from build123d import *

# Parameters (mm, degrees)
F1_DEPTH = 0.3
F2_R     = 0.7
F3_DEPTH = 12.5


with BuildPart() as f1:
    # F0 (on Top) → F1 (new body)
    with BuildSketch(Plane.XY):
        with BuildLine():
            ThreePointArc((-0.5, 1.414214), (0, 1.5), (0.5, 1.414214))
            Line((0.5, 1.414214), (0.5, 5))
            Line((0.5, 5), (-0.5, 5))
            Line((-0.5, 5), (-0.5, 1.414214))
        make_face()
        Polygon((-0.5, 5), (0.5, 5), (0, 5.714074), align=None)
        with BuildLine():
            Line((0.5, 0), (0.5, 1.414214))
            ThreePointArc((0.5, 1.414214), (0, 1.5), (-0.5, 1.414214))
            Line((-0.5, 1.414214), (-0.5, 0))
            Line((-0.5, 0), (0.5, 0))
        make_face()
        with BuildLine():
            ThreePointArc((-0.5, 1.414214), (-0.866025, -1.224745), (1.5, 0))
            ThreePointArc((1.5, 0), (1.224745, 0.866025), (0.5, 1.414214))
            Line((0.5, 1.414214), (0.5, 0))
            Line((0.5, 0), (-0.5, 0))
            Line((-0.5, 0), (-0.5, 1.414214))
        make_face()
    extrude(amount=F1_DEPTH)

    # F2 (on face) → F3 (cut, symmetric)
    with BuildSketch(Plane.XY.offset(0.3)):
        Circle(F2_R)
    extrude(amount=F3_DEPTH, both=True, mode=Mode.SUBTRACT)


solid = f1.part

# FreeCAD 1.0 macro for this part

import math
import FreeCAD as App
import Part
import Sketcher

V = App.Vector
Q = App.Units.Quantity

doc = App.newDocument("Part")
body = doc.addObject("PartDesign::Body", "Body")

sketch1 = doc.addObject("Sketcher::SketchObject", "Sketch")
body.addObject(sketch1)
sketch1.AttachmentSupport = (doc.XY_Plane, [""])
sketch1.MapMode = "FlatFace"
sketch1.addGeometry(Part.LineSegment(V(0.5, 5, 0), V(0, 5.7, 0)), False)
sketch1.addGeometry(Part.LineSegment(V(0, 5.7, 0), V(-0.5, 5, 0)), False)
sketch1.addGeometry(Part.LineSegment(V(-0.5, 5, 0), V(-0.5, 1.4, 0)), False)
sketch1.addGeometry(Part.ArcOfCircle(Part.Circle(V(0, 0, 0), V(0, 0, 1), 1.5), math.radians(109), math.radians(360)), False)
sketch1.addGeometry(Part.ArcOfCircle(Part.Circle(V(0, 0, 0), V(0, 0, 1), 1.5), math.radians(0), math.radians(71)), False)
sketch1.addGeometry(Part.LineSegment(V(0.5, 1.4, 0), V(0.5, 5, 0)), False)
sketch1.addConstraint(Sketcher.Constraint("Coincident", 0, 2, 1, 1))
sketch1.addConstraint(Sketcher.Constraint("Coincident", 1, 2, 2, 1))
sketch1.addConstraint(Sketcher.Constraint("Coincident", 2, 2, 3, 1))
sketch1.addConstraint(Sketcher.Constraint("Tangent", 3, 2, 4, 1))
sketch1.addConstraint(Sketcher.Constraint("Coincident", 4, 2, 5, 1))
sketch1.addConstraint(Sketcher.Constraint("Coincident", 5, 2, 0, 1))
sketch1.addConstraint(Sketcher.Constraint("Vertical", 2))
sketch1.addConstraint(Sketcher.Constraint("Vertical", 5))
sketch1.addConstraint(Sketcher.Constraint("Coincident", 3, 3, -1, 1))
sketch1.addConstraint(Sketcher.Constraint("Equal", 3, 4))
sketch1.addConstraint(Sketcher.Constraint("Symmetric", 1, 2, 5, 2, -2))
sketch1.addConstraint(Sketcher.Constraint("PointOnObject", 0, 2, -2))
sketch1.addConstraint(Sketcher.Constraint("PointOnObject", 3, 2, -1))
sketch1.addConstraint(Sketcher.Constraint("Radius", 3, 1.5))
sketch1.addConstraint(Sketcher.Constraint("Angle", 0, Q("125 deg")))
sketch1.addConstraint(Sketcher.Constraint("DistanceY", -1, 1, 1, 2, 5.0))
sketch1.addConstraint(Sketcher.Constraint("DistanceX", 2, 2, 3, 2, 2.0))
pad1 = doc.addObject("PartDesign::Pad", "Pad")
body.addObject(pad1)
pad1.Profile = sketch1
pad1.Length = 0.3

sketch2 = doc.addObject("Sketcher::SketchObject", "Sketch001")
body.addObject(sketch2)
sketch2.AttachmentSupport = (doc.XY_Plane, [""])
sketch2.MapMode = "FlatFace"
sketch2.AttachmentOffset = App.Placement(V(0, 0, 0.3), App.Rotation())
sketch2.addGeometry(Part.Circle(V(0, 0, 0), V(0, 0, 1), 0.7), False)
sketch2.addConstraint(Sketcher.Constraint("Coincident", 0, 3, -1, 1))
sketch2.addConstraint(Sketcher.Constraint("Diameter", 0, 1.4))
pocket1 = doc.addObject("PartDesign::Pocket", "Pocket")
body.addObject(pocket1)
pocket1.Profile = sketch2
pocket1.Length = 25
pocket1.Midplane = True

doc.recompute()
